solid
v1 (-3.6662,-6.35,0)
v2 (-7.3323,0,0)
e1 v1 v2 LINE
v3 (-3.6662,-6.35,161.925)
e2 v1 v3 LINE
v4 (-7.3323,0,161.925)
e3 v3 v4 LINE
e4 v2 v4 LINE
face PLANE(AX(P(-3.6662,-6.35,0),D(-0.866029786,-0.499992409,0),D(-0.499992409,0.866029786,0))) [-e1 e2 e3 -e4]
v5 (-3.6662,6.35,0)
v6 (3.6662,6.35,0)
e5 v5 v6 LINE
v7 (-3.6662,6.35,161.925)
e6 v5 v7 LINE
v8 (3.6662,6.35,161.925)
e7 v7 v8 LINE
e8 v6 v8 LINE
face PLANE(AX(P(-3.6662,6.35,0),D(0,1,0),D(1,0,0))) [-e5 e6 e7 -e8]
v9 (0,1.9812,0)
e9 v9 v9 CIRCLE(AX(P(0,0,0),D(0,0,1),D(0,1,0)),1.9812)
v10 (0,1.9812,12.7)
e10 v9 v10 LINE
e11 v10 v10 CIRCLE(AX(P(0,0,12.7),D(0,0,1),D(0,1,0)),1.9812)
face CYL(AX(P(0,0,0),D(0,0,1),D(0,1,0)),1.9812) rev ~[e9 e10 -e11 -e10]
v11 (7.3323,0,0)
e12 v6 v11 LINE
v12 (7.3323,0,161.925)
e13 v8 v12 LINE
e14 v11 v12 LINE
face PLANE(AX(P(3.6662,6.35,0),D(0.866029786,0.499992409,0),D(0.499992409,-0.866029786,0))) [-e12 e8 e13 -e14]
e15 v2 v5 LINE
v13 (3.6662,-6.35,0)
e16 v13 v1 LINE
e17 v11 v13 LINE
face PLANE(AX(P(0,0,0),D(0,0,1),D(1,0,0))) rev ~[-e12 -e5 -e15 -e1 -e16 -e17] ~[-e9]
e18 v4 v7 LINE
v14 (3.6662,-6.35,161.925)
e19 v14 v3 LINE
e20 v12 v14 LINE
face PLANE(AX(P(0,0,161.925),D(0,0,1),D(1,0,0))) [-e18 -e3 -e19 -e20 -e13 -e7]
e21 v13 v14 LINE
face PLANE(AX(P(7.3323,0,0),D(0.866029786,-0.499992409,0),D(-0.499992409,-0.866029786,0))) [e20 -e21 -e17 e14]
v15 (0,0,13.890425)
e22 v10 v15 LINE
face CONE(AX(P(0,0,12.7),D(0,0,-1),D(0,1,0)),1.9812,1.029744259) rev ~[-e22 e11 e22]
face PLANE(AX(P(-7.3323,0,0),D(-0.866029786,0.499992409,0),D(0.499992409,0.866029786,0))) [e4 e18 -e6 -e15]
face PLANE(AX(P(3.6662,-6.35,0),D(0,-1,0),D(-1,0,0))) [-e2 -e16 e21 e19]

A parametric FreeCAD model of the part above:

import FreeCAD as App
import Part
import Sketcher
Q = App.Units.Quantity


def add_polygon(sketch, points):
    """Adds a closed chain of lines whose ends are joined by coincident constraints."""
    first, n = sketch.GeometryCount, len(points)
    for a, b in zip(points, points[1:] + points[:1]):
        sketch.addGeometry(Part.LineSegment(App.Vector(*a, 0), App.Vector(*b, 0)), False)
    for i in range(n):
        sketch.addConstraint(Sketcher.Constraint("Coincident", first + i, 2, first + (i + 1) % n, 1))

doc = App.newDocument("Part")
body = doc.addObject("PartDesign::Body", "Body")

# Sketch on XY plane
sketch1 = body.newObject("Sketcher::SketchObject", "Sketch")
sketch1.AttachmentSupport = (doc.getObject("XY_Plane"), [""])
sketch1.MapMode = "FlatFace"
add_polygon(sketch1, [(-4, -6), (4, -6), (7, 0), (4, 6), (-4, 6), (-7, 0)])  # lines 0-5
sketch1.addConstraint([
    Sketcher.Constraint("Horizontal", 0),
    Sketcher.Constraint("Horizontal", 3),
    Sketcher.Constraint("Symmetric", 0, 2, 3, 2, -1, 1),
    Sketcher.Constraint("Symmetric", 1, 2, 4, 2, -1, 1),
    Sketcher.Constraint("PointOnObject", 1, 2, -1),
    Sketcher.Constraint("Parallel", 2, 5),
    Sketcher.Constraint("Vertical", 0, 2, 2, 2),
    Sketcher.Constraint("DistanceY", 0, 2, 2, 2, Q("0.5 in")),
    Sketcher.Constraint("Angle", 1, Q("60.0005 deg")),
    Sketcher.Constraint("DistanceX", 3, 2, 1, 2, Q("0.433 in")),
])
pad1 = body.newObject("PartDesign::Pad", "Pad")
pad1.Profile = sketch1
pad1.Length = Q("6.375 in")

# Sketch on XY plane
sketch2 = body.newObject("Sketcher::SketchObject", "Sketch001")
sketch2.AttachmentSupport = (doc.getObject("XY_Plane"), [""])
sketch2.MapMode = "FlatFace"
sketch2.addGeometry(Part.Circle(App.Vector(0, 0, 0), App.Vector(0, 0, 1), 2), False)
sketch2.addConstraint([
    Sketcher.Constraint("Coincident", 0, 3, -1, 1),
    Sketcher.Constraint("Diameter", 0, Q("0.156 in")),
])
doc.recompute()
hole = body.newObject("PartDesign::Hole", "Hole")
hole.Profile = sketch2
hole.ThreadType = "None"
hole.Diameter = Q("0.156 in")
hole.DepthType = "Dimension"
hole.Depth = Q("0.5 in")
hole.DrillPoint = "Angled"
hole.DrillPointAngle = 118
hole.Reversed = True

doc.recompute()
